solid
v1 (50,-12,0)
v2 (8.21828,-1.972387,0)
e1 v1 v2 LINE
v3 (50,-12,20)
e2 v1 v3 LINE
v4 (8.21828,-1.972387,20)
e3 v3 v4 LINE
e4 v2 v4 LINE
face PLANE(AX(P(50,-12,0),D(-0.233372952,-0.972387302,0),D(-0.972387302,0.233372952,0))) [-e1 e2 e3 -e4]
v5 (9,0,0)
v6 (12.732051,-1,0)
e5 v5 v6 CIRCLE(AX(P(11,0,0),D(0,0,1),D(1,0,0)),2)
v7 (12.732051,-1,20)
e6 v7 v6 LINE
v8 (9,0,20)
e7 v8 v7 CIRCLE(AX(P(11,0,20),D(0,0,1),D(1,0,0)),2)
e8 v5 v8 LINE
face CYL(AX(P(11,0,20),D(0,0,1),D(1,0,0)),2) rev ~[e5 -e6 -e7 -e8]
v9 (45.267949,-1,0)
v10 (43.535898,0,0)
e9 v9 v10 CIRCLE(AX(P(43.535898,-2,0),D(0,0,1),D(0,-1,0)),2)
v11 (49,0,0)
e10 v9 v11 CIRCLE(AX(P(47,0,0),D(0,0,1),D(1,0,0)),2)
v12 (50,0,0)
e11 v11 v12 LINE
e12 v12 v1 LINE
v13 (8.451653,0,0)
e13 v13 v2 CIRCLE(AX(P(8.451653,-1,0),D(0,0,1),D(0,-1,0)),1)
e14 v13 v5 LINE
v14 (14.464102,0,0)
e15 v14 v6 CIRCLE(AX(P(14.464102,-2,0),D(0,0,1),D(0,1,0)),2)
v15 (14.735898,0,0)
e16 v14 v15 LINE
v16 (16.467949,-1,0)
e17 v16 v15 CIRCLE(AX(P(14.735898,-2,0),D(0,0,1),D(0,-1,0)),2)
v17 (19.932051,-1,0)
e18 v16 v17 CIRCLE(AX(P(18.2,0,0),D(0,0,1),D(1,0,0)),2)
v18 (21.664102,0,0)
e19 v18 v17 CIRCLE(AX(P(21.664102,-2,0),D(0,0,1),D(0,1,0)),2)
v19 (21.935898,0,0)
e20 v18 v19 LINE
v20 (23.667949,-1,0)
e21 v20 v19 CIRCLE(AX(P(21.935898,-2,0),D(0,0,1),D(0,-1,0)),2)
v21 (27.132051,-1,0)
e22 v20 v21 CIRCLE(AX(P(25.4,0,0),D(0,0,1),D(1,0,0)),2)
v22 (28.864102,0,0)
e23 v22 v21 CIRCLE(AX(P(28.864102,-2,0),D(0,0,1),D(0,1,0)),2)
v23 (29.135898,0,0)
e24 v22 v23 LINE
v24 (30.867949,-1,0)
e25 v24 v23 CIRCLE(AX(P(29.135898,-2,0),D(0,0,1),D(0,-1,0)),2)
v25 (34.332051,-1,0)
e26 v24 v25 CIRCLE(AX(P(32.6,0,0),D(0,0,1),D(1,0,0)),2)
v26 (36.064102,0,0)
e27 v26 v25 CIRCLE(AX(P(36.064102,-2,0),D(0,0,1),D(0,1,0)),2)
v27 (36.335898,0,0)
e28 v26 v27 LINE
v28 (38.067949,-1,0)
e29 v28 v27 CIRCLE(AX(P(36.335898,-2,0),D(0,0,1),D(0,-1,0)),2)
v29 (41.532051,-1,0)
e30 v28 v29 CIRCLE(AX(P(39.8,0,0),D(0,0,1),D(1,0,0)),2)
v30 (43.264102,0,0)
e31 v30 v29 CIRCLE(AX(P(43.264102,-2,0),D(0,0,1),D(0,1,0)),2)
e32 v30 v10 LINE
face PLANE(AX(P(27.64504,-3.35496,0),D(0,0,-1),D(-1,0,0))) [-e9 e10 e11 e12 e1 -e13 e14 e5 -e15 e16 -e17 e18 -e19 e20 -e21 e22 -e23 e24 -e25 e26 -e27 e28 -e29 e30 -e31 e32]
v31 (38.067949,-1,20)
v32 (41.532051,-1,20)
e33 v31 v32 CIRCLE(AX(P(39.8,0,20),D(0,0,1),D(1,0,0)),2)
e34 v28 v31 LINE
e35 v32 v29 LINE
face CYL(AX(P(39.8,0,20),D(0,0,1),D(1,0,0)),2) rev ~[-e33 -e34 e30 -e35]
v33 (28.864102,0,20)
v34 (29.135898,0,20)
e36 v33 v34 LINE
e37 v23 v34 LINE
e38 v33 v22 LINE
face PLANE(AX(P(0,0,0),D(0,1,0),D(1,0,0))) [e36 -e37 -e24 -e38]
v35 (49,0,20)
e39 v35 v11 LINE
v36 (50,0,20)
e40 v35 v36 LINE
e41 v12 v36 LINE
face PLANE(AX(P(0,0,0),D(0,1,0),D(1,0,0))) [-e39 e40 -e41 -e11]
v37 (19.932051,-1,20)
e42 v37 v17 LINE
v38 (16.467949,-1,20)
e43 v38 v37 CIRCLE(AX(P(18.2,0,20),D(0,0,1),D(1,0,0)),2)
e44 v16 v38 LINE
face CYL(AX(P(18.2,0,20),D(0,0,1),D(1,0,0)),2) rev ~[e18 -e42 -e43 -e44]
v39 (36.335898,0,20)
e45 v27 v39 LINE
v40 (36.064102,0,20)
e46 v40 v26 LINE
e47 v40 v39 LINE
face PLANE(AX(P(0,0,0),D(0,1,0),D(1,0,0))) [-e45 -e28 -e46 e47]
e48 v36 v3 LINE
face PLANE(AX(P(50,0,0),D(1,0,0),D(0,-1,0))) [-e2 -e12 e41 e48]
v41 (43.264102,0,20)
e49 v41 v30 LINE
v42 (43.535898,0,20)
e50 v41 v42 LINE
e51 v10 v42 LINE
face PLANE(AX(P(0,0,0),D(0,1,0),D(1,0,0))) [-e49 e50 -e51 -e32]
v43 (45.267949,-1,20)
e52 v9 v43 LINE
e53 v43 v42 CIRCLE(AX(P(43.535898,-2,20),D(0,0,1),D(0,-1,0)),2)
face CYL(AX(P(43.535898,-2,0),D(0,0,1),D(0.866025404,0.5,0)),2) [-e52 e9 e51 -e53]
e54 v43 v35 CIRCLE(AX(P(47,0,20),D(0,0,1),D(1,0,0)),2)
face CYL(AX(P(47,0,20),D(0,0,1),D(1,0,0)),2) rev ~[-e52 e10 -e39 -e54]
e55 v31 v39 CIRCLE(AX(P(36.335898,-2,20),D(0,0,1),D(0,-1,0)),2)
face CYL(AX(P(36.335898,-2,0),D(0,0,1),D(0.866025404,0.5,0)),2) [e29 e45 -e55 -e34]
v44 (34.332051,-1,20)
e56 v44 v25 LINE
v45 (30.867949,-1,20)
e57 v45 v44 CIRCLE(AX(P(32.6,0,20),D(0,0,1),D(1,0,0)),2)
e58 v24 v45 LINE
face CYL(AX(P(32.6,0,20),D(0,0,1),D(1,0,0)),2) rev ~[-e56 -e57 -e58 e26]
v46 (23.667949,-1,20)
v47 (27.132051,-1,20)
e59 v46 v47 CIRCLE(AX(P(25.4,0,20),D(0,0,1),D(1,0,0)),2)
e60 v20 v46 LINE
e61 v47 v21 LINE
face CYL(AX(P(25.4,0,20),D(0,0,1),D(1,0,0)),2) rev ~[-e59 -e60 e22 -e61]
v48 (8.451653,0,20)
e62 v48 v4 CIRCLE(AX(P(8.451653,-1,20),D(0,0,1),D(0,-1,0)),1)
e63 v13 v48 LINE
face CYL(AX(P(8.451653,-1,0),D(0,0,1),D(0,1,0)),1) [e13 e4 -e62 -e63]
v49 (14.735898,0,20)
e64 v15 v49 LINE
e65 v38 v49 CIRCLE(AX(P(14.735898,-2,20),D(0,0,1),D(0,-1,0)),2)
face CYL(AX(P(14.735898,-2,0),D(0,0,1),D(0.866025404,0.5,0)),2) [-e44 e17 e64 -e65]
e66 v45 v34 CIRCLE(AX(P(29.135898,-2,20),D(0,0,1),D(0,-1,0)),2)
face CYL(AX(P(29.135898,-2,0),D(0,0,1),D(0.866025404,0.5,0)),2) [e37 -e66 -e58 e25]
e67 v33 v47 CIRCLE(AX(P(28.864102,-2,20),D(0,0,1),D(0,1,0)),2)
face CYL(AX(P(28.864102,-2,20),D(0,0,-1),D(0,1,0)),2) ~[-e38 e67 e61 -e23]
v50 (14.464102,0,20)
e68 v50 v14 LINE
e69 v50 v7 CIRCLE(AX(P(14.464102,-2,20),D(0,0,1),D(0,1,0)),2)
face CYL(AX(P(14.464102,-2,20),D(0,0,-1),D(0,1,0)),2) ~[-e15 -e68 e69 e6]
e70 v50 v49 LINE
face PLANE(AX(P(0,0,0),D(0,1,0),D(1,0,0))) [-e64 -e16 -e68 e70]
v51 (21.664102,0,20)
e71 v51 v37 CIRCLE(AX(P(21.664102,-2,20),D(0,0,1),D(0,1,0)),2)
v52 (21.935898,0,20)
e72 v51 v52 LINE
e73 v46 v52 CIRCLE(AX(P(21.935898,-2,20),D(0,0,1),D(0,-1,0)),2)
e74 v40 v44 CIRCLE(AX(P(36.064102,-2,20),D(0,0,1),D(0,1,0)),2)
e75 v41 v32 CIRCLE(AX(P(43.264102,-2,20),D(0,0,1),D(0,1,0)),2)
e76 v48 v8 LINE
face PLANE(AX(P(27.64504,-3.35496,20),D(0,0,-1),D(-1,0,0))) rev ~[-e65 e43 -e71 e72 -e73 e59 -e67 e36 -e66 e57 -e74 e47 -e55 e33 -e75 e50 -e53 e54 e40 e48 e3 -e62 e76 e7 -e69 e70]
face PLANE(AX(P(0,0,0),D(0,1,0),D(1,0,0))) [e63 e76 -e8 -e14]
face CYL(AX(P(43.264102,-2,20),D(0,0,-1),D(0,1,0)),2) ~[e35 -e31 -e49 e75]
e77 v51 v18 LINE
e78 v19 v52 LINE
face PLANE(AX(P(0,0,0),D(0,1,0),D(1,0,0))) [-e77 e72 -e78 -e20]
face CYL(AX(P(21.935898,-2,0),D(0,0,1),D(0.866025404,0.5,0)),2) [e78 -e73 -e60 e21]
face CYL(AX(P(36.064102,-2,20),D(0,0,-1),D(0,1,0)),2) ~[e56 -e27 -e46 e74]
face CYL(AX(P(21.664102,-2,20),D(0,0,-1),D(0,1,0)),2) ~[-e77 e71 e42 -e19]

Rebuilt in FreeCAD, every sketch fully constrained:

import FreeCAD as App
import Part
import Sketcher

V = App.Vector


def edges_at(feature, points):
    """Names of the edges that pass closest to the given points."""
    edges = feature.Shape.Edges
    near = lambda p: min(range(len(edges)), key=lambda i: edges[i].distToShape(Part.Vertex(*p))[0])
    return sorted({f"Edge{near(p) + 1}" for p in points})


def add_polygon(sketch, points):
    """Adds a closed chain of lines whose ends are joined by coincident constraints."""
    first, n = sketch.GeometryCount, len(points)
    for a, b in zip(points, points[1:] + points[:1]):
        sketch.addGeometry(Part.LineSegment(App.Vector(*a, 0), App.Vector(*b, 0)), False)
    for i in range(n):
        sketch.addConstraint(Sketcher.Constraint("Coincident", first + i, 2, first + (i + 1) % n, 1))

doc = App.newDocument("Part")
body = doc.addObject("PartDesign::Body", "Body")

sketch1 = doc.addObject("Sketcher::SketchObject", "Sketch")
body.addObject(sketch1)
sketch1.AttachmentSupport = (doc.XY_Plane, [""])
sketch1.MapMode = "FlatFace"
add_polygon(sketch1, [(50, 0), (0, 0), (50, -12)])
sketch1.addConstraint([
    Sketcher.Constraint("Horizontal", 0),
    Sketcher.Constraint("Vertical", 2),
    Sketcher.Constraint("Coincident", 0, 2, -1, 1),
    Sketcher.Constraint("DistanceX", 0, 2, 0, 1, 50.0),
    Sketcher.Constraint("DistanceY", 2, 1, 2, 2, 12.0),
])
pad1 = doc.addObject("PartDesign::Pad", "Pad")
body.addObject(pad1)
pad1.Profile = sketch1
pad1.Length = 20
doc.recompute()

fillet = doc.addObject("PartDesign::Fillet", "Fillet")
body.addObject(fillet)
fillet.Base = (pad1, edges_at(pad1, [(0, 0, 10)]))
fillet.Radius = 1

sketch2 = doc.addObject("Sketcher::SketchObject", "Sketch001")
body.addObject(sketch2)
sketch2.AttachmentSupport = (doc.XY_Plane, [""])
sketch2.MapMode = "FlatFace"
sketch2.AttachmentOffset = App.Placement(V(0, 0, 20), App.Rotation())
sketch2.addGeometry(Part.Circle(V(47, 0, 0), V(0, 0, 1), 2), False)
sketch2.addConstraint([
    Sketcher.Constraint("PointOnObject", 0, 3, -1),
    Sketcher.Constraint("Diameter", 0, 4.0),
    Sketcher.Constraint("DistanceX", -1, 1, 0, 3, 47.0),
])
pocket1 = doc.addObject("PartDesign::Pocket", "Pocket")
body.addObject(pocket1)
pocket1.Profile = sketch2
pocket1.Type = "ThroughAll"
doc.recompute()

linearpattern = doc.addObject("PartDesign::LinearPattern", "LinearPattern")
body.addObject(linearpattern)
linearpattern.Originals = [pocket1]
linearpattern.Direction = (doc.X_Axis, [""])
linearpattern.Mode = "offset"
linearpattern.Offset = 7.2
linearpattern.Occurrences = 6
linearpattern.Reversed = True
body.Tip = linearpattern
doc.recompute()

fillet2 = doc.addObject("PartDesign::Fillet", "Fillet001")
body.addObject(fillet2)
fillet2.Base = (linearpattern, edges_at(linearpattern, [
    (13, 0, 10),
    (16.2, 0, 10),
    (20.2, 0, 10),
    (23.4, 0, 10),
    (27.4, 0, 10),
    (30.6, 0, 10),
    (34.6, 0, 10),
    (37.8, 0, 10),
    (41.8, 0, 10),
    (45, 0, 10),
]))
fillet2.Radius = 2

doc.recompute()
